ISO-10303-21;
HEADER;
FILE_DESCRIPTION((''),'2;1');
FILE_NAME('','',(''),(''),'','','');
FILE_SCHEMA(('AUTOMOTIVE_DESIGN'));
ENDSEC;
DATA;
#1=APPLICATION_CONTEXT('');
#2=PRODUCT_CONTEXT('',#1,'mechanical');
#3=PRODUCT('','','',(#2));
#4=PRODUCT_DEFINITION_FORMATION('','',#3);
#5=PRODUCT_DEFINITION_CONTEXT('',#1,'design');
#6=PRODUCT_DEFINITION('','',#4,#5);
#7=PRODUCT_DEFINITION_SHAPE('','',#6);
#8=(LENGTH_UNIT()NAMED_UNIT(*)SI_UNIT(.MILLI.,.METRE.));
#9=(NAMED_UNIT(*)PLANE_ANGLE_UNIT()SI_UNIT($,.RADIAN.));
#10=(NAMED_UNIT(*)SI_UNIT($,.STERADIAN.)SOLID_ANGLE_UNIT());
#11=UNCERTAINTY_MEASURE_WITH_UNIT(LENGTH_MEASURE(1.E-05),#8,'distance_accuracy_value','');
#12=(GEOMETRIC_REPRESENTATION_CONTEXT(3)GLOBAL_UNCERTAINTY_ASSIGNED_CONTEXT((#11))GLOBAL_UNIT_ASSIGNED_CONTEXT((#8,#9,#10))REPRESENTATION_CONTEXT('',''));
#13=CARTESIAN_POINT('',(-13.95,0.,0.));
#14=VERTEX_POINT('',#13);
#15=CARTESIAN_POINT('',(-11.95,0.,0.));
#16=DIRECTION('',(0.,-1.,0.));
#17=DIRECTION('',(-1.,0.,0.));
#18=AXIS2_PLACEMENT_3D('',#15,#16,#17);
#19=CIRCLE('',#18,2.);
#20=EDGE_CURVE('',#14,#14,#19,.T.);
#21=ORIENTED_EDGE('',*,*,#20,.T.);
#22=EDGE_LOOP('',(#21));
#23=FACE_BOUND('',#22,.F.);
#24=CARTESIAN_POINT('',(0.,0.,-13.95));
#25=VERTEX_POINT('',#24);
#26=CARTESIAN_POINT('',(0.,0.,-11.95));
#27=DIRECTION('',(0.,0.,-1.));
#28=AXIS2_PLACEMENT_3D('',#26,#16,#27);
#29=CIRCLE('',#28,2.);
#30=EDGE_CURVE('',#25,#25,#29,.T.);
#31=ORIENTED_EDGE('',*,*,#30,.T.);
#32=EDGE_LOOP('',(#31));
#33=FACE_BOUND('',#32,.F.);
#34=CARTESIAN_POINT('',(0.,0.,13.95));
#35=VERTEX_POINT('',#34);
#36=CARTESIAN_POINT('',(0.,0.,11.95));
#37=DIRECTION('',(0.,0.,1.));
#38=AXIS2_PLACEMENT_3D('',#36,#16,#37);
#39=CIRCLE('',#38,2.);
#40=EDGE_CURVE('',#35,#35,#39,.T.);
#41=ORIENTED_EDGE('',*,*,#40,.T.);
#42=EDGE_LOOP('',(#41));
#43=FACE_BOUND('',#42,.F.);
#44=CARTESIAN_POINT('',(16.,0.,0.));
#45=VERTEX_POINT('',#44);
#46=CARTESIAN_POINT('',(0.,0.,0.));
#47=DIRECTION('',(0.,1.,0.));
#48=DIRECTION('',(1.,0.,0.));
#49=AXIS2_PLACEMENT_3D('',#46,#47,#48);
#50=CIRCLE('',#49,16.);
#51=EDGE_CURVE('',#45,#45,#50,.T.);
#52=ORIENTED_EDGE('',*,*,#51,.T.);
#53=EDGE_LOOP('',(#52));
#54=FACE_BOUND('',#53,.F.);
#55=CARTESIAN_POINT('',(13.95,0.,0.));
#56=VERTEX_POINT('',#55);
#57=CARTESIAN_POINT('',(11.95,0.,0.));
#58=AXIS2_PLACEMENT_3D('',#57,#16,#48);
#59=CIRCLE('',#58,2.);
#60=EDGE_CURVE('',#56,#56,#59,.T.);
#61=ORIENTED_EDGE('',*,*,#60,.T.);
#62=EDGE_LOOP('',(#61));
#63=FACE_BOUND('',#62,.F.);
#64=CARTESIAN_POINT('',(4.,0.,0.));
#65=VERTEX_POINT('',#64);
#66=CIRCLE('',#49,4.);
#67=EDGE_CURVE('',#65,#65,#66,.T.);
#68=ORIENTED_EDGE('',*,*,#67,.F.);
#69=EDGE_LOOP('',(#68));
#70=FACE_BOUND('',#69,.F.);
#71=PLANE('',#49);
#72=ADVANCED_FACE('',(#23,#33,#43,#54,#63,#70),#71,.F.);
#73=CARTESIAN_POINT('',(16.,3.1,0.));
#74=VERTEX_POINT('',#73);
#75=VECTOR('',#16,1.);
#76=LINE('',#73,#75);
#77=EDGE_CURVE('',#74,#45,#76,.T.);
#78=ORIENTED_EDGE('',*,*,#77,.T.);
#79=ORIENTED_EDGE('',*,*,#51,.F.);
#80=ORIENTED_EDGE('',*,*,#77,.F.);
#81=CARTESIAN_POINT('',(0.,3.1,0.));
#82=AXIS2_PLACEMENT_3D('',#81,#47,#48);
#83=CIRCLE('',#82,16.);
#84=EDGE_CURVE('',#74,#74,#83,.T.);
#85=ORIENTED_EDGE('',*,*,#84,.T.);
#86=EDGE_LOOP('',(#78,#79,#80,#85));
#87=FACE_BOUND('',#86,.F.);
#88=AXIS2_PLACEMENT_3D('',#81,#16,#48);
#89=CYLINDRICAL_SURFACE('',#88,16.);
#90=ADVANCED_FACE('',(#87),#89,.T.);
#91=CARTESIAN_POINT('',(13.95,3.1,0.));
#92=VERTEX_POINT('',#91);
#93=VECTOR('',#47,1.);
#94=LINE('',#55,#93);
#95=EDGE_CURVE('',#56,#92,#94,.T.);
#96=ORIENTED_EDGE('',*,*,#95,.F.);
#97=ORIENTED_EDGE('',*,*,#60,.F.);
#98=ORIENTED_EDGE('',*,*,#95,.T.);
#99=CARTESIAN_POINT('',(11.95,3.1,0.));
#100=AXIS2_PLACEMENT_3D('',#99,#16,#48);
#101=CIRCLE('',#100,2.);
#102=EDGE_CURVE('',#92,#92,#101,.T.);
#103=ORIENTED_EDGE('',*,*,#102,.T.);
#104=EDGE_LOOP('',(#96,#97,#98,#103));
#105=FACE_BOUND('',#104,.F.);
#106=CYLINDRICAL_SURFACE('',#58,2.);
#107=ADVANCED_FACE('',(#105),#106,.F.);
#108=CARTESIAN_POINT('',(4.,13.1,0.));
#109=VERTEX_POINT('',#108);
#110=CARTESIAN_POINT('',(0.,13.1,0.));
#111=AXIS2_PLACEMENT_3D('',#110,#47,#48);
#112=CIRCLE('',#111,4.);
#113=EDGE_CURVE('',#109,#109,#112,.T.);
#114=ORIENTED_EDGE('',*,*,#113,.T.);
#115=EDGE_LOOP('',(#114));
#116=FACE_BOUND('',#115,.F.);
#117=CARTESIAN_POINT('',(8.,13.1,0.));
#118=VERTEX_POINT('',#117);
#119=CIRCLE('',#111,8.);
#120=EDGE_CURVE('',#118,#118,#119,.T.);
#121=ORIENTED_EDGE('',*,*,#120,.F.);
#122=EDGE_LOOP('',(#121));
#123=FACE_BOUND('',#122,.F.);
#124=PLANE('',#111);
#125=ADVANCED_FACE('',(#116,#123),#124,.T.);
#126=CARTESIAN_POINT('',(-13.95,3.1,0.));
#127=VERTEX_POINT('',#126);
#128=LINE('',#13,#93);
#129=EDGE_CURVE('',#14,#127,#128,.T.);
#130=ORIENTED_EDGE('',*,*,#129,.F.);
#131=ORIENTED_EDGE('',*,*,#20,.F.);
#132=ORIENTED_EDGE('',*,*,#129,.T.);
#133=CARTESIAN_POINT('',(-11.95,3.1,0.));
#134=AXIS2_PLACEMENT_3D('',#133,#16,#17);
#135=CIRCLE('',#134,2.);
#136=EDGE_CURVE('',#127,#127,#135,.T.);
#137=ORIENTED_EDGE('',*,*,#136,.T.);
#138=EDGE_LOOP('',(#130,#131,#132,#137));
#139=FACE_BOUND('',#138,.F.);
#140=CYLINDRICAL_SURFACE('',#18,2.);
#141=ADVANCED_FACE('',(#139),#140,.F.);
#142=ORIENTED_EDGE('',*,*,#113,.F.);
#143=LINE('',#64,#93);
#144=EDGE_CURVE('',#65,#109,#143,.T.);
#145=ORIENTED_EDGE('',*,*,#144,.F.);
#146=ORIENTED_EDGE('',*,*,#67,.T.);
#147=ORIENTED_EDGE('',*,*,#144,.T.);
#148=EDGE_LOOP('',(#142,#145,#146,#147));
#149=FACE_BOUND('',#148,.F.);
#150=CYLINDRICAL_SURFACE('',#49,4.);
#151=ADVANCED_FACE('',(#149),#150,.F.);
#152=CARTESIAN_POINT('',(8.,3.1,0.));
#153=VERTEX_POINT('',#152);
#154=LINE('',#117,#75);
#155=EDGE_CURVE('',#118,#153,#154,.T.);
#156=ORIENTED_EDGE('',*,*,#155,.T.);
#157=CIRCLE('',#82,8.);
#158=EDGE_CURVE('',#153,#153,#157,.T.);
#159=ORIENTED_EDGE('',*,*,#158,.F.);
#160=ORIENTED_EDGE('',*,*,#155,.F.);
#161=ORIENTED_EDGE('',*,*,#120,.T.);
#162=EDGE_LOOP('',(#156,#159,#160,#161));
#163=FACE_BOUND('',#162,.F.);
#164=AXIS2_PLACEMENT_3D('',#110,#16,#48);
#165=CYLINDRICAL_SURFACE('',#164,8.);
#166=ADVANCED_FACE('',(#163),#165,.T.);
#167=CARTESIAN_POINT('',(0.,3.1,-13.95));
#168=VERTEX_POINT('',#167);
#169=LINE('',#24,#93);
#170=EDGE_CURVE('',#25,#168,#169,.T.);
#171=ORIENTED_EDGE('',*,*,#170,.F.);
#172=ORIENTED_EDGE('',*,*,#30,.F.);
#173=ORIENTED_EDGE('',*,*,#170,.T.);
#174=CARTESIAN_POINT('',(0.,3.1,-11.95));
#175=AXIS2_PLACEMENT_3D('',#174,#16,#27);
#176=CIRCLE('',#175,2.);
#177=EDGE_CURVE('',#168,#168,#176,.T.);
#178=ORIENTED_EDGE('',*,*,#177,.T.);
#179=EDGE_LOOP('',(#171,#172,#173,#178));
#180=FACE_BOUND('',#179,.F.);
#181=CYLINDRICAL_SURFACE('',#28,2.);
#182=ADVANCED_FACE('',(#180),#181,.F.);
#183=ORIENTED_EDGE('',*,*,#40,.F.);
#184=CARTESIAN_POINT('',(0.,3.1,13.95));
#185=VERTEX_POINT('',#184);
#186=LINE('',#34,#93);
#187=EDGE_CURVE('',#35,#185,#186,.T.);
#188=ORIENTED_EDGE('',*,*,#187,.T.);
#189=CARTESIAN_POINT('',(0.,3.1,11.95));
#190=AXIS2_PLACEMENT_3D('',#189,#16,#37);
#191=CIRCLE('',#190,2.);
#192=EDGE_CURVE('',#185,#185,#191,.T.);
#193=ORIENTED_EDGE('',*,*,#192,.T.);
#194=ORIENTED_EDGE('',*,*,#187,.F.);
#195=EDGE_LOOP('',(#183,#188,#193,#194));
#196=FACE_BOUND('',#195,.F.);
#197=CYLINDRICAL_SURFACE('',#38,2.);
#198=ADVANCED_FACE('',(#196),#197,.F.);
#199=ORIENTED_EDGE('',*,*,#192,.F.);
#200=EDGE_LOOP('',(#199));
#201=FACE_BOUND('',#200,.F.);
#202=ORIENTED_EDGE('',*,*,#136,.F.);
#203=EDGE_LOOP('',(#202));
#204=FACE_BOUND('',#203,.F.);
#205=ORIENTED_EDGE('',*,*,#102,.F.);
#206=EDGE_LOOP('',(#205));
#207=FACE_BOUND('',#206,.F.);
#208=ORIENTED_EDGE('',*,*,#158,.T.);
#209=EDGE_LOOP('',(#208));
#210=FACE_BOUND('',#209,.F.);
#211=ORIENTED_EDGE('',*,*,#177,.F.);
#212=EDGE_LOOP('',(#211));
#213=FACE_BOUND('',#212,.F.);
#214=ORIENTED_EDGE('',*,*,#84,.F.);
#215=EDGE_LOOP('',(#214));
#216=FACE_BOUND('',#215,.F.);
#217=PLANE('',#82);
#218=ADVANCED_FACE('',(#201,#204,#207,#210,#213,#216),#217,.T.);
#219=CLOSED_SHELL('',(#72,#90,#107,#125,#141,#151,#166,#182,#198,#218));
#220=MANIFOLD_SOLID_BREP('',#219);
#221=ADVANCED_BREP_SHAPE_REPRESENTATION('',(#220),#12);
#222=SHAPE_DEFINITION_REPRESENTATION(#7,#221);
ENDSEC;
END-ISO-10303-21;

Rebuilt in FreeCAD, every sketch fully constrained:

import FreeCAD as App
import Part
import Sketcher

V = App.Vector


def add_polygon(sketch, points):
    """Adds a closed chain of lines whose ends are joined by coincident constraints."""
    first, n = sketch.GeometryCount, len(points)
    for a, b in zip(points, points[1:] + points[:1]):
        sketch.addGeometry(Part.LineSegment(App.Vector(*a, 0), App.Vector(*b, 0)), False)
    for i in range(n):
        sketch.addConstraint(Sketcher.Constraint("Coincident", first + i, 2, first + (i + 1) % n, 1))

doc = App.newDocument("Part")
body = doc.addObject("PartDesign::Body", "Body")

# Sketch on XY plane
sketch1 = body.newObject("Sketcher::SketchObject", "Sketch")
sketch1.AttachmentSupport = (doc.getObject("XY_Plane"), [""])
sketch1.MapMode = "FlatFace"
add_polygon(sketch1, [(4, 13.1), (4, 0), (16, 0), (16, 3.1), (8, 3.1), (8, 13.1)])  # lines 0-5
sketch1.addConstraint([
    Sketcher.Constraint("Vertical", 0),
    Sketcher.Constraint("Horizontal", 1),
    Sketcher.Constraint("Vertical", 2),
    Sketcher.Constraint("Horizontal", 3),
    Sketcher.Constraint("Vertical", 4),
    Sketcher.Constraint("Horizontal", 5),
    Sketcher.Constraint("PointOnObject", 0, 2, -1),
    Sketcher.Constraint("DistanceX", 3, 2, 3, 1, 8.0),
    Sketcher.Constraint("DistanceY", 4, 1, 4, 2, 10.0),
    Sketcher.Constraint("DistanceY", 0, 2, 0, 1, 13.1),
    Sketcher.Constraint("DistanceX", -1, 1, 1, 2, 16.0),
    Sketcher.Constraint("DistanceX", 1, 1, 1, 2, 12.0),
])
revolution = body.newObject("PartDesign::Revolution", "Revolution")
revolution.Profile = sketch1
revolution.ReferenceAxis = (sketch1, ["V_Axis"])
revolution.Angle = 360

# Sketch on XZ plane
sketch2 = body.newObject("Sketcher::SketchObject", "Sketch001")
sketch2.AttachmentSupport = (doc.getObject("XZ_Plane"), [""])
sketch2.MapMode = "FlatFace"
sketch2.addGeometry(Part.Circle(V(11.95, 0, 0), V(0, 0, 1), 2), False)
sketch2.addConstraint([
    Sketcher.Constraint("PointOnObject", 0, 3, -1),
    Sketcher.Constraint("Diameter", 0, 4.0),
    Sketcher.Constraint("DistanceX", -1, 1, 0, 3, 11.95),
])
pocket1 = body.newObject("PartDesign::Pocket", "Pocket")
pocket1.Profile = sketch2
pocket1.Type = "ThroughAll"
doc.recompute()

polarpattern = body.newObject("PartDesign::PolarPattern", "PolarPattern")
polarpattern.Originals = [pocket1]
polarpattern.Axis = (doc.getObject("Y_Axis"), [""])
polarpattern.Angle = 360
polarpattern.Occurrences = 4
body.Tip = polarpattern

doc.recompute()
